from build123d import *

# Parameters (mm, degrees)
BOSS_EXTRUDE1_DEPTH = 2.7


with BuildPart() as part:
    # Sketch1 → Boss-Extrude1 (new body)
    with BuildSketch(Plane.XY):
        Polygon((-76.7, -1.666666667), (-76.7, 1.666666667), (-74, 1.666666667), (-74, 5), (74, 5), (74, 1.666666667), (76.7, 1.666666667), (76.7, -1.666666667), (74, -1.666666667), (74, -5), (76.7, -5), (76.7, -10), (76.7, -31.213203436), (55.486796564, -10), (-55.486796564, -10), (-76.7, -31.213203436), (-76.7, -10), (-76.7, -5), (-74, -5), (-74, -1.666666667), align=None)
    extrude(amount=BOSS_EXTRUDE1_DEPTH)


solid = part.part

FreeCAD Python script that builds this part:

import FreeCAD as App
import Part
import Sketcher

V = App.Vector


def add_polygon(sketch, points):
    """Adds a closed chain of lines whose ends are joined by coincident constraints."""
    first, n = sketch.GeometryCount, len(points)
    for a, b in zip(points, points[1:] + points[:1]):
        sketch.addGeometry(Part.LineSegment(App.Vector(*a, 0), App.Vector(*b, 0)), False)
    for i in range(n):
        sketch.addConstraint(Sketcher.Constraint("Coincident", first + i, 2, first + (i + 1) % n, 1))

doc = App.newDocument("Part")
body = doc.addObject("PartDesign::Body", "Body")

# Sketch on XY plane
sketch1 = doc.addObject("Sketcher::SketchObject", "Sketch")
body.addObject(sketch1)
sketch1.AttachmentSupport = (doc.XY_Plane, [""])
sketch1.MapMode = "FlatFace"
add_polygon(sketch1, [(-76.7, 1.7), (-76.7, -1.7), (-74, -1.7), (-74, -5), (-76.7, -5), (-76.7, -31.2), (-55.5, -10), (55.5, -10), (76.7, -31.2), (76.7, -5), (74, -5), (74, -1.7), (76.7, -1.7), (76.7, 1.7), (74, 1.7), (74, 5), (-74, 5), (-74, 1.7)])  # lines 0-17
sketch1.addConstraint([
    Sketcher.Constraint("Vertical", 0),
    Sketcher.Constraint("Horizontal", 1),
    Sketcher.Constraint("Vertical", 2),
    Sketcher.Constraint("Horizontal", 3),
    Sketcher.Constraint("Vertical", 4),
    Sketcher.Constraint("Horizontal", 6),
    Sketcher.Constraint("Vertical", 8),
    Sketcher.Constraint("Horizontal", 9),
    Sketcher.Constraint("Vertical", 10),
    Sketcher.Constraint("Horizontal", 11),
    Sketcher.Constraint("Vertical", 12),
    Sketcher.Constraint("Horizontal", 13),
    Sketcher.Constraint("Vertical", 14),
    Sketcher.Constraint("Horizontal", 15),
    Sketcher.Constraint("Vertical", 16),
    Sketcher.Constraint("Horizontal", 17),
    Sketcher.Constraint("Symmetric", 0, 2, 12, 2, -1, 1),
    Sketcher.Constraint("Symmetric", 2, 2, 14, 2, -1, 1),
    Sketcher.Constraint("Symmetric", 9, 2, 15, 2, -1, 1),
    Sketcher.Constraint("Symmetric", 4, 2, 7, 2, -2),
    Sketcher.Constraint("Symmetric", 1, 2, 10, 2, -2),
    Sketcher.Constraint("Perpendicular", 5, 7),
    Sketcher.Constraint("Horizontal", 13, 2, 16, 2),
    Sketcher.Constraint("Vertical", 0, 2, 3, 2),
    Sketcher.Constraint("Equal", 0, 2),
    Sketcher.Constraint("Equal", 5, 7),
    Sketcher.Constraint("DistanceX", 15, 2, 15, 1, 148.0),
    Sketcher.Constraint("Distance", 5, 30.0),
    Sketcher.Constraint("DistanceX", 1, 1, 1, 2, 2.7),
    Sketcher.Constraint("DistanceY", 2, 2, -1, 1, 5.0),
    Sketcher.Constraint("DistanceY", 5, 2, -1, 1, 10.0),
])
pad1 = doc.addObject("PartDesign::Pad", "Pad")
body.addObject(pad1)
pad1.Profile = sketch1
pad1.Length = 2.7

doc.recompute()
